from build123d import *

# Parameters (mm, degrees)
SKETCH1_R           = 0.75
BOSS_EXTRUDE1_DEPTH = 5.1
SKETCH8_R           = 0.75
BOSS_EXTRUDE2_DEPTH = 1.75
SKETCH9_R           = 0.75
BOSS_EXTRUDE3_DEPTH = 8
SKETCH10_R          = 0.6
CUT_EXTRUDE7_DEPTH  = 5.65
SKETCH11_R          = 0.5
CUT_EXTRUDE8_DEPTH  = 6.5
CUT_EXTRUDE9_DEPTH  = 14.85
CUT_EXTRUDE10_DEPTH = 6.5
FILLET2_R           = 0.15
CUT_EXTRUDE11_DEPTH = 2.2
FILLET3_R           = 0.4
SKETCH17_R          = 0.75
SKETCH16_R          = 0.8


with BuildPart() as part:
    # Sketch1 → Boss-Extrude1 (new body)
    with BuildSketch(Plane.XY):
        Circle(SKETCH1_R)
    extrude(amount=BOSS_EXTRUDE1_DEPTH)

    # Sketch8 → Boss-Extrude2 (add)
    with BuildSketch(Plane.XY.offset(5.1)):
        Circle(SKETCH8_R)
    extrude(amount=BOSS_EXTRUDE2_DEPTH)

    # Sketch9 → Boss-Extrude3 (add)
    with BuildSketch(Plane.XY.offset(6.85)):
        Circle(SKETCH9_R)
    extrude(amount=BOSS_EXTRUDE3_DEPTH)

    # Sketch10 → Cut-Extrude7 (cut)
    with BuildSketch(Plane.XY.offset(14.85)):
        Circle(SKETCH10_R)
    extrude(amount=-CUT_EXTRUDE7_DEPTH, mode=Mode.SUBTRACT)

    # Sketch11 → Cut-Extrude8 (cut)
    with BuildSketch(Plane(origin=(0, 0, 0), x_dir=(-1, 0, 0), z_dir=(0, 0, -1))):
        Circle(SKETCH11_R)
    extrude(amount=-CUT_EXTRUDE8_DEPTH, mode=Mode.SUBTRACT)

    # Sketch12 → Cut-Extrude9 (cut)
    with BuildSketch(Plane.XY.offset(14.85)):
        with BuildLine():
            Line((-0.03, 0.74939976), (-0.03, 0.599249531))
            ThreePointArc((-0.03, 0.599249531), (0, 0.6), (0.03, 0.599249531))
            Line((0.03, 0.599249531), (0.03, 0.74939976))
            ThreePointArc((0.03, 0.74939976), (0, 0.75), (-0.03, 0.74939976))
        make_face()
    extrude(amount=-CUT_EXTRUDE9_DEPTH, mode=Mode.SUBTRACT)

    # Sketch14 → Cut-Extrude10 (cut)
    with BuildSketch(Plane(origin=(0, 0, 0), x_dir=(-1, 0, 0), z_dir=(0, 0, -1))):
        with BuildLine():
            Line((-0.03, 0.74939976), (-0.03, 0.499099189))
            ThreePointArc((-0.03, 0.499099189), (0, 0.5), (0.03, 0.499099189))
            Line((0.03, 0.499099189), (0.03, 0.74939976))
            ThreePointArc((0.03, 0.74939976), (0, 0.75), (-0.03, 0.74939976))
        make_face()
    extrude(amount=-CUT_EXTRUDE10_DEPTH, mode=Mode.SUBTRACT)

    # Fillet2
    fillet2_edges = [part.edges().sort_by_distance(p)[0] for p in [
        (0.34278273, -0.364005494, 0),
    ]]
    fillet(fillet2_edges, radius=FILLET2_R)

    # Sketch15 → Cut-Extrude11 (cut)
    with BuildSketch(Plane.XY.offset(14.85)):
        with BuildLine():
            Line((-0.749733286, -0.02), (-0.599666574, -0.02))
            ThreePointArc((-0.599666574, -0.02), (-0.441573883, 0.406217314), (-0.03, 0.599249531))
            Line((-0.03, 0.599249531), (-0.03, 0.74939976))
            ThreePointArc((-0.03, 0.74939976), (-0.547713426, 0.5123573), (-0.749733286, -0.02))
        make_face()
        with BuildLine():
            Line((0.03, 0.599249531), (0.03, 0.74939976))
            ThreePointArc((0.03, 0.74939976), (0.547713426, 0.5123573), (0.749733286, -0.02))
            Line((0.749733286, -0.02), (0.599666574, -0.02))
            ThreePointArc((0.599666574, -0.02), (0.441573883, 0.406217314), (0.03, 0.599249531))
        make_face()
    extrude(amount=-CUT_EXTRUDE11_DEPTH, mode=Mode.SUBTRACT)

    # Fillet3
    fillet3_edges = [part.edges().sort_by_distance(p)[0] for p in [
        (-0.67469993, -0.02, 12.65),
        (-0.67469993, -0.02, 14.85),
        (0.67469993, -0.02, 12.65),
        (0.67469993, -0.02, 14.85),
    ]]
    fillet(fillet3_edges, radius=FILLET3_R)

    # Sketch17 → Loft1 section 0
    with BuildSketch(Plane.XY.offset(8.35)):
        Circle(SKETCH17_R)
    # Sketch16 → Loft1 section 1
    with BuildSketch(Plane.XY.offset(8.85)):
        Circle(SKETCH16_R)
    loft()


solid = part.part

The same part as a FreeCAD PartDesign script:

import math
import FreeCAD as App
import Part
import Sketcher


def edges_at(feature, points):
    """Names of the edges that pass closest to the given points."""
    edges = feature.Shape.Edges
    near = lambda p: min(range(len(edges)), key=lambda i: edges[i].distToShape(Part.Vertex(*p))[0])
    return sorted({f"Edge{near(p) + 1}" for p in points})

doc = App.newDocument("Part")
body = doc.addObject("PartDesign::Body", "Body")

# Sketch on XY plane
sketch1 = body.newObject("Sketcher::SketchObject", "Sketch")
sketch1.AttachmentSupport = (doc.getObject("XY_Plane"), [""])
sketch1.MapMode = "FlatFace"
sketch1.addGeometry(Part.Circle(App.Vector(0, 0, 0), App.Vector(0, 0, 1), 0.8), False)
sketch1.addConstraint(Sketcher.Constraint("Coincident", 0, 3, -1, 1))
sketch1.addConstraint(Sketcher.Constraint("Diameter", 0, 1.5))
pad1 = body.newObject("PartDesign::Pad", "Pad")
pad1.Profile = sketch1
pad1.Length = 5.1

# Sketch on XY plane
sketch2 = body.newObject("Sketcher::SketchObject", "Sketch001")
sketch2.AttachmentSupport = (doc.getObject("XY_Plane"), [""])
sketch2.MapMode = "FlatFace"
sketch2.AttachmentOffset = App.Placement(App.Vector(0, 0, 5.1), App.Rotation())
sketch2.addGeometry(Part.Circle(App.Vector(0, 0, 0), App.Vector(0, 0, 1), 0.8), False)
sketch2.addConstraint(Sketcher.Constraint("Coincident", 0, 3, -1, 1))
sketch2.addConstraint(Sketcher.Constraint("Diameter", 0, 1.5))
pad2 = body.newObject("PartDesign::Pad", "Pad001")
pad2.Profile = sketch2
pad2.Length = 1.75

# Sketch on XY plane
sketch3 = body.newObject("Sketcher::SketchObject", "Sketch002")
sketch3.AttachmentSupport = (doc.getObject("XY_Plane"), [""])
sketch3.MapMode = "FlatFace"
sketch3.AttachmentOffset = App.Placement(App.Vector(0, 0, 6.85), App.Rotation())
sketch3.addGeometry(Part.Circle(App.Vector(0, 0, 0), App.Vector(0, 0, 1), 0.8), False)
sketch3.addConstraint(Sketcher.Constraint("Coincident", 0, 3, -1, 1))
sketch3.addConstraint(Sketcher.Constraint("Diameter", 0, 1.5))
pad3 = body.newObject("PartDesign::Pad", "Pad002")
pad3.Profile = sketch3
pad3.Length = 8

# Sketch on XY plane
sketch4 = body.newObject("Sketcher::SketchObject", "Sketch003")
sketch4.AttachmentSupport = (doc.getObject("XY_Plane"), [""])
sketch4.MapMode = "FlatFace"
sketch4.AttachmentOffset = App.Placement(App.Vector(0, 0, 14.85), App.Rotation())
sketch4.addGeometry(Part.Circle(App.Vector(0, 0, 0), App.Vector(0, 0, 1), 0.6), False)
sketch4.addConstraint(Sketcher.Constraint("Coincident", 0, 3, -1, 1))
sketch4.addConstraint(Sketcher.Constraint("Diameter", 0, 1.2))
pocket1 = body.newObject("PartDesign::Pocket", "Pocket")
pocket1.Profile = sketch4
pocket1.Length = 5.65

# Sketch on XY plane
sketch5 = body.newObject("Sketcher::SketchObject", "Sketch004")
sketch5.AttachmentSupport = (doc.getObject("XY_Plane"), [""])
sketch5.MapMode = "FlatFace"
sketch5.addGeometry(Part.Circle(App.Vector(0, 0, 0), App.Vector(0, 0, 1), 0.5), False)
sketch5.addConstraint(Sketcher.Constraint("Coincident", 0, 3, -1, 1))
sketch5.addConstraint(Sketcher.Constraint("Diameter", 0, 1.0))
pocket2 = body.newObject("PartDesign::Pocket", "Pocket001")
pocket2.Profile = sketch5
pocket2.Length = 6.5
pocket2.Reversed = True

# Sketch on XY plane
sketch6 = body.newObject("Sketcher::SketchObject", "Sketch005")
sketch6.AttachmentSupport = (doc.getObject("XY_Plane"), [""])
sketch6.MapMode = "FlatFace"
sketch6.AttachmentOffset = App.Placement(App.Vector(0, 0, 14.85), App.Rotation())
sketch6.addGeometry(Part.LineSegment(App.Vector(-0.03, 0.75, 0), App.Vector(-0.03, 0.6, 0)), False)
sketch6.addGeometry(Part.ArcOfCircle(Part.Circle(App.Vector(0, 0, 0), App.Vector(0, 0, 1), 0.6), math.radians(87.13), math.radians(92.87)), False)
sketch6.addGeometry(Part.LineSegment(App.Vector(0.03, 0.6, 0), App.Vector(0.03, 0.75, 0)), False)
sketch6.addGeometry(Part.ArcOfCircle(Part.Circle(App.Vector(0, 0, 0), App.Vector(0, 0, 1), 0.75), math.radians(87.71), math.radians(92.29)), False)
sketch6.addConstraint(Sketcher.Constraint("Coincident", 0, 2, 1, 2))
sketch6.addConstraint(Sketcher.Constraint("Coincident", 1, 1, 2, 1))
sketch6.addConstraint(Sketcher.Constraint("Coincident", 2, 2, 3, 1))
sketch6.addConstraint(Sketcher.Constraint("Coincident", 3, 2, 0, 1))
sketch6.addConstraint(Sketcher.Constraint("Vertical", 0))
sketch6.addConstraint(Sketcher.Constraint("Vertical", 2))
sketch6.addConstraint(Sketcher.Constraint("Coincident", 1, 3, -1, 1))
sketch6.addConstraint(Sketcher.Constraint("Coincident", 3, 3, -1, 1))
sketch6.addConstraint(Sketcher.Constraint("Horizontal", 0, 2, 1, 1))
sketch6.addConstraint(Sketcher.Constraint("Radius", 1, 0.6))
sketch6.addConstraint(Sketcher.Constraint("Radius", 3, 0.75))
sketch6.addConstraint(Sketcher.Constraint("DistanceX", 0, 2, -1, 1, 0.03))
pocket3 = body.newObject("PartDesign::Pocket", "Pocket002")
pocket3.Profile = sketch6
pocket3.Length = 14.85

# Sketch on XY plane
sketch7 = body.newObject("Sketcher::SketchObject", "Sketch006")
sketch7.AttachmentSupport = (doc.getObject("XY_Plane"), [""])
sketch7.MapMode = "FlatFace"
sketch7.addGeometry(Part.LineSegment(App.Vector(0.03, 0.75, 0), App.Vector(0.03, 0.5, 0)), False)
sketch7.addGeometry(Part.ArcOfCircle(Part.Circle(App.Vector(0, 0, 0), App.Vector(0, 0, 1), 0.5), math.radians(86.56), math.radians(93.44)), False)
sketch7.addGeometry(Part.LineSegment(App.Vector(-0.03, 0.5, 0), App.Vector(-0.03, 0.75, 0)), False)
sketch7.addGeometry(Part.ArcOfCircle(Part.Circle(App.Vector(0, 0, 0), App.Vector(0, 0, 1), 0.75), math.radians(87.71), math.radians(92.29)), False)
sketch7.addConstraint(Sketcher.Constraint("Coincident", 0, 2, 1, 1))
sketch7.addConstraint(Sketcher.Constraint("Coincident", 1, 2, 2, 1))
sketch7.addConstraint(Sketcher.Constraint("Coincident", 2, 2, 3, 2))
sketch7.addConstraint(Sketcher.Constraint("Coincident", 3, 1, 0, 1))
sketch7.addConstraint(Sketcher.Constraint("Vertical", 0))
sketch7.addConstraint(Sketcher.Constraint("Vertical", 2))
sketch7.addConstraint(Sketcher.Constraint("Coincident", 1, 3, -1, 1))
sketch7.addConstraint(Sketcher.Constraint("Coincident", 3, 3, -1, 1))
sketch7.addConstraint(Sketcher.Constraint("Horizontal", 0, 2, 1, 2))
sketch7.addConstraint(Sketcher.Constraint("Radius", 1, 0.5))
sketch7.addConstraint(Sketcher.Constraint("Radius", 3, 0.75))
sketch7.addConstraint(Sketcher.Constraint("DistanceX", -1, 1, 0, 2, 0.03))
pocket4 = body.newObject("PartDesign::Pocket", "Pocket003")
pocket4.Profile = sketch7
pocket4.Length = 6.5
pocket4.Reversed = True
doc.recompute()

fillet = body.newObject("PartDesign::Fillet", "Fillet")
fillet.Base = (pocket4, edges_at(pocket4, [(0.343, -0.364, 0)]))
fillet.Radius = 0.15

# Sketch on XY plane
sketch8 = body.newObject("Sketcher::SketchObject", "Sketch007")
sketch8.AttachmentSupport = (doc.getObject("XY_Plane"), [""])
sketch8.MapMode = "FlatFace"
sketch8.AttachmentOffset = App.Placement(App.Vector(0, 0, 14.85), App.Rotation())
sketch8.addGeometry(Part.LineSegment(App.Vector(-0.75, -0.02, 0), App.Vector(-0.6, -0.02, 0)), False)
sketch8.addGeometry(Part.ArcOfCircle(Part.Circle(App.Vector(0, 0, 0), App.Vector(0, 0, 1), 0.6), math.radians(93), math.radians(182)), False)
sketch8.addGeometry(Part.LineSegment(App.Vector(-0.03, 0.6, 0), App.Vector(-0.03, 0.75, 0)), False)
sketch8.addGeometry(Part.ArcOfCircle(Part.Circle(App.Vector(0, 0, 0), App.Vector(0, 0, 1), 0.75), math.radians(92), math.radians(182)), False)
sketch8.addGeometry(Part.LineSegment(App.Vector(0.03, 0.75, 0), App.Vector(0.03, 0.6, 0)), False)
sketch8.addGeometry(Part.ArcOfCircle(Part.Circle(App.Vector(0, 0, 0), App.Vector(0, 0, 1), 0.6), math.radians(-2), math.radians(87)), False)
sketch8.addGeometry(Part.LineSegment(App.Vector(0.6, -0.02, 0), App.Vector(0.75, -0.02, 0)), False)
sketch8.addGeometry(Part.ArcOfCircle(Part.Circle(App.Vector(0, 0, 0), App.Vector(0, 0, 1), 0.75), math.radians(-2), math.radians(88)), False)
sketch8.addConstraint(Sketcher.Constraint("Coincident", 0, 2, 1, 2))
sketch8.addConstraint(Sketcher.Constraint("Coincident", 1, 1, 2, 1))
sketch8.addConstraint(Sketcher.Constraint("Coincident", 2, 2, 3, 1))
sketch8.addConstraint(Sketcher.Constraint("Coincident", 3, 2, 0, 1))
sketch8.addConstraint(Sketcher.Constraint("Coincident", 4, 2, 5, 2))
sketch8.addConstraint(Sketcher.Constraint("Coincident", 5, 1, 6, 1))
sketch8.addConstraint(Sketcher.Constraint("Coincident", 6, 2, 7, 1))
sketch8.addConstraint(Sketcher.Constraint("Coincident", 7, 2, 4, 1))
sketch8.addConstraint(Sketcher.Constraint("Horizontal", 0))
sketch8.addConstraint(Sketcher.Constraint("Vertical", 2))
sketch8.addConstraint(Sketcher.Constraint("Vertical", 4))
sketch8.addConstraint(Sketcher.Constraint("Horizontal", 6))
sketch8.addConstraint(Sketcher.Constraint("Coincident", 1, 3, -1, 1))
sketch8.addConstraint(Sketcher.Constraint("Coincident", 3, 3, -1, 1))
sketch8.addConstraint(Sketcher.Constraint("Coincident", 5, 3, -1, 1))
sketch8.addConstraint(Sketcher.Constraint("Coincident", 7, 3, -1, 1))
sketch8.addConstraint(Sketcher.Constraint("Equal", 1, 5))
sketch8.addConstraint(Sketcher.Constraint("Equal", 3, 7))
sketch8.addConstraint(Sketcher.Constraint("Horizontal", 1, 1, 4, 2))
sketch8.addConstraint(Sketcher.Constraint("Horizontal", 3, 2, 5, 1))
sketch8.addConstraint(Sketcher.Constraint("Radius", 1, 0.6))
sketch8.addConstraint(Sketcher.Constraint("Radius", 3, 0.75))
sketch8.addConstraint(Sketcher.Constraint("DistanceY", 0, 2, -1, 1, 0.02))
sketch8.addConstraint(Sketcher.Constraint("DistanceX", 1, 1, -1, 1, 0.03))
pocket5 = body.newObject("PartDesign::Pocket", "Pocket004")
pocket5.Profile = sketch8
pocket5.Length = 2.2
doc.recompute()

fillet2 = body.newObject("PartDesign::Fillet", "Fillet001")
fillet2.Base = (pocket5, edges_at(pocket5, [
    (-0.675, -0.02, 12.65),
    (-0.675, -0.02, 14.85),
    (0.675, -0.02, 12.65),
    (0.675, -0.02, 14.85),
]))
fillet2.Radius = 0.4

# Sketch on XY plane
sketch9 = body.newObject("Sketcher::SketchObject", "Sketch008")
sketch9.AttachmentSupport = (doc.getObject("XY_Plane"), [""])
sketch9.MapMode = "FlatFace"
sketch9.AttachmentOffset = App.Placement(App.Vector(0, 0, 8.35), App.Rotation())
sketch9.addGeometry(Part.Circle(App.Vector(0, 0, 0), App.Vector(0, 0, 1), 0.8), False)
sketch9.addConstraint(Sketcher.Constraint("Coincident", 0, 3, -1, 1))
sketch9.addConstraint(Sketcher.Constraint("Diameter", 0, 1.5))

# Sketch on XY plane
sketch10 = body.newObject("Sketcher::SketchObject", "Sketch009")
sketch10.AttachmentSupport = (doc.getObject("XY_Plane"), [""])
sketch10.MapMode = "FlatFace"
sketch10.AttachmentOffset = App.Placement(App.Vector(0, 0, 8.85), App.Rotation())
sketch10.addGeometry(Part.Circle(App.Vector(0, 0, 0), App.Vector(0, 0, 1), 0.8), False)
sketch10.addConstraint(Sketcher.Constraint("Coincident", 0, 3, -1, 1))
sketch10.addConstraint(Sketcher.Constraint("Diameter", 0, 1.6))

additiveloft = body.newObject("PartDesign::AdditiveLoft", "AdditiveLoft")
additiveloft.Profile = sketch9
additiveloft.Sections = [sketch10]

doc.recompute()
